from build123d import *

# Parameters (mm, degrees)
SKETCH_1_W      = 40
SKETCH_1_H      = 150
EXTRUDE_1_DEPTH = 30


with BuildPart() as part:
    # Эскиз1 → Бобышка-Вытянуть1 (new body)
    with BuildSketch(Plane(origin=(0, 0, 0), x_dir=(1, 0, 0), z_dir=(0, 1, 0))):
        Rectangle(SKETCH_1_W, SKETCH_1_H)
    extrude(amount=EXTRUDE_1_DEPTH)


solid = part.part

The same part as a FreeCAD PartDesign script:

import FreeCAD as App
import Part
import Sketcher

V = App.Vector


def add_polygon(sketch, points):
    """Adds a closed chain of lines whose ends are joined by coincident constraints."""
    first, n = sketch.GeometryCount, len(points)
    for a, b in zip(points, points[1:] + points[:1]):
        sketch.addGeometry(Part.LineSegment(App.Vector(*a, 0), App.Vector(*b, 0)), False)
    for i in range(n):
        sketch.addConstraint(Sketcher.Constraint("Coincident", first + i, 2, first + (i + 1) % n, 1))

doc = App.newDocument("Part")
body = doc.addObject("PartDesign::Body", "Body")

sketch1 = doc.addObject("Sketcher::SketchObject", "Sketch")
body.addObject(sketch1)
sketch1.AttachmentSupport = (doc.XZ_Plane, [""])
sketch1.MapMode = "FlatFace"
add_polygon(sketch1, [(-20, -75), (-20, 75), (20, 75), (20, -75)])
sketch1.addConstraint([
    Sketcher.Constraint("Vertical", 0),
    Sketcher.Constraint("Horizontal", 1),
    Sketcher.Constraint("Vertical", 2),
    Sketcher.Constraint("Horizontal", 3),
    Sketcher.Constraint("Symmetric", 0, 2, 2, 2, -1, 1),
    Sketcher.Constraint("DistanceX", 1, 1, 1, 2, 40.0),
    Sketcher.Constraint("DistanceY", 0, 1, 0, 2, 150.0),
])
pad1 = doc.addObject("PartDesign::Pad", "Pad")
body.addObject(pad1)
pad1.Profile = sketch1
pad1.Length = 30
pad1.Reversed = True

doc.recompute()
